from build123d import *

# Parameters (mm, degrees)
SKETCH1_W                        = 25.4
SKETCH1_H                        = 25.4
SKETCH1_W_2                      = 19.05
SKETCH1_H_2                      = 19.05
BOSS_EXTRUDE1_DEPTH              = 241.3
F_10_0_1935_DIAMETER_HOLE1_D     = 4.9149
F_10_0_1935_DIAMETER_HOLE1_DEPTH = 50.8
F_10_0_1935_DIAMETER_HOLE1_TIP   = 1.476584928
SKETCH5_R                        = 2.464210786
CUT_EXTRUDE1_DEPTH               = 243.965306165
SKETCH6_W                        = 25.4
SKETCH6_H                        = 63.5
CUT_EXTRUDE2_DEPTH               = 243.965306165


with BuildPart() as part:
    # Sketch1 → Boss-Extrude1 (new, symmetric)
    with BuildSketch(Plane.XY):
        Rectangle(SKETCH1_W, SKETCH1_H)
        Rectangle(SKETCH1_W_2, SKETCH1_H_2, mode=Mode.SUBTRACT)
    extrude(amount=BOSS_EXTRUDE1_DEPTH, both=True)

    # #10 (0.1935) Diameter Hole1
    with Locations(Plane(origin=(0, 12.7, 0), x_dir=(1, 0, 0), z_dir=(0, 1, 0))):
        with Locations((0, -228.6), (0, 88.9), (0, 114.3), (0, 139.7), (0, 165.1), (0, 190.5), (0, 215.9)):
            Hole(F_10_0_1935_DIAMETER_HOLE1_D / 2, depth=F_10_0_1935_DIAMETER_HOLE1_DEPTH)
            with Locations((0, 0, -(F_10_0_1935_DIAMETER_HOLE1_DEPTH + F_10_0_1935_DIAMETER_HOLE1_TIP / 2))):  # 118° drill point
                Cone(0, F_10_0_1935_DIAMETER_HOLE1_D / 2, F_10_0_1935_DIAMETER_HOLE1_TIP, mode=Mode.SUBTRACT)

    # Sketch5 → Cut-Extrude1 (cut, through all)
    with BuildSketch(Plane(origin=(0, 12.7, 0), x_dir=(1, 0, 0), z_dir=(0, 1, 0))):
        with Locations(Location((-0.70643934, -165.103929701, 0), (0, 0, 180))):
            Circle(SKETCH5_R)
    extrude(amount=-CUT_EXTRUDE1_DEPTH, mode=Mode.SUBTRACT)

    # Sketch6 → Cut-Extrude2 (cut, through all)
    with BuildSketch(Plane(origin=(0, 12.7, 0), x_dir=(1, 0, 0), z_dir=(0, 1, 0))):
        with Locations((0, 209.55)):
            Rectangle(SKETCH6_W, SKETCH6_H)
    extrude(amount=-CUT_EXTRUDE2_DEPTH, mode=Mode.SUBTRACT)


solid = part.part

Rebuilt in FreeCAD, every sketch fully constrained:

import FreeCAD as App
import Part
import Sketcher
Q = App.Units.Quantity

doc = App.newDocument("Part")
body = doc.addObject("PartDesign::Body", "Body")

# Sketch on XY plane
sketch1 = body.newObject("Sketcher::SketchObject", "Sketch")
sketch1.AttachmentSupport = (doc.getObject("XY_Plane"), [""])
sketch1.MapMode = "FlatFace"
sketch1.addGeometry([
    Part.LineSegment(App.Vector(-13, 13, 0), App.Vector(-13, -13, 0)),  # 0
    Part.LineSegment(App.Vector(-13, -13, 0), App.Vector(13, -13, 0)),  # 1
    Part.LineSegment(App.Vector(13, -13, 0), App.Vector(13, 13, 0)),  # 2
    Part.LineSegment(App.Vector(13, 13, 0), App.Vector(-13, 13, 0)),  # 3
    Part.LineSegment(App.Vector(10, -10, 0), App.Vector(-10, -10, 0)),  # 4
    Part.LineSegment(App.Vector(-10, -10, 0), App.Vector(-10, 10, 0)),  # 5
    Part.LineSegment(App.Vector(-10, 10, 0), App.Vector(10, 10, 0)),  # 6
    Part.LineSegment(App.Vector(10, 10, 0), App.Vector(10, -10, 0)),  # 7
], False)
sketch1.addConstraint([
    Sketcher.Constraint("Coincident", 0, 2, 1, 1),
    Sketcher.Constraint("Coincident", 1, 2, 2, 1),
    Sketcher.Constraint("Coincident", 2, 2, 3, 1),
    Sketcher.Constraint("Coincident", 3, 2, 0, 1),
    Sketcher.Constraint("Coincident", 4, 2, 5, 1),
    Sketcher.Constraint("Coincident", 5, 2, 6, 1),
    Sketcher.Constraint("Coincident", 6, 2, 7, 1),
    Sketcher.Constraint("Coincident", 7, 2, 4, 1),
    Sketcher.Constraint("Vertical", 0),
    Sketcher.Constraint("Horizontal", 1),
    Sketcher.Constraint("Vertical", 2),
    Sketcher.Constraint("Horizontal", 3),
    Sketcher.Constraint("Horizontal", 4),
    Sketcher.Constraint("Vertical", 5),
    Sketcher.Constraint("Horizontal", 6),
    Sketcher.Constraint("Vertical", 7),
    Sketcher.Constraint("Symmetric", 0, 2, 2, 2, -1, 1),
    Sketcher.Constraint("Symmetric", 4, 2, 6, 2, -1, 1),
    Sketcher.Constraint("Equal", 3, 0),
    Sketcher.Constraint("Equal", 6, 5),
    Sketcher.Constraint("DistanceX", 1, 1, 1, 2, Q("1 in")),
    Sketcher.Constraint("DistanceX", 4, 2, 4, 1, Q("0.75 in")),
])
pad1 = body.newObject("PartDesign::Pad", "Pad")
pad1.Profile = sketch1
pad1.Length = Q("19 in")
pad1.Midplane = True

# Sketch on XZ plane
sketch2 = body.newObject("Sketcher::SketchObject", "Sketch001")
sketch2.AttachmentSupport = (doc.getObject("XZ_Plane"), [""])
sketch2.MapMode = "FlatFace"
sketch2.AttachmentOffset = App.Placement(App.Vector(0, 0, -0.5 * 25.4), App.Rotation())
sketch2.addGeometry([
    Part.Circle(App.Vector(0, 228.6, 0), App.Vector(0, 0, 1), 2.5),  # 0
    Part.Circle(App.Vector(0, -88.9, 0), App.Vector(0, 0, 1), 2.5),  # 1
    Part.Circle(App.Vector(0, -114.3, 0), App.Vector(0, 0, 1), 2.5),  # 2
    Part.Circle(App.Vector(0, -139.7, 0), App.Vector(0, 0, 1), 2.5),  # 3
    Part.Circle(App.Vector(0, -165.1, 0), App.Vector(0, 0, 1), 2.5),  # 4
    Part.Circle(App.Vector(0, -190.5, 0), App.Vector(0, 0, 1), 2.5),  # 5
    Part.Circle(App.Vector(0, -215.9, 0), App.Vector(0, 0, 1), 2.5),  # 6
], False)
sketch2.addConstraint([
    Sketcher.Constraint("Equal", 0, 1),
    Sketcher.Constraint("Equal", 1, 2),
    Sketcher.Constraint("Equal", 2, 3),
    Sketcher.Constraint("Equal", 3, 4),
    Sketcher.Constraint("Equal", 4, 5),
    Sketcher.Constraint("Equal", 5, 6),
    Sketcher.Constraint("PointOnObject", 0, 3, -2),
    Sketcher.Constraint("PointOnObject", 1, 3, -2),
    Sketcher.Constraint("PointOnObject", 2, 3, -2),
    Sketcher.Constraint("PointOnObject", 3, 3, -2),
    Sketcher.Constraint("PointOnObject", 4, 3, -2),
    Sketcher.Constraint("PointOnObject", 5, 3, -2),
    Sketcher.Constraint("PointOnObject", 6, 3, -2),
    Sketcher.Constraint("DistanceY", -1, 1, 0, 3, Q("9 in")),
    Sketcher.Constraint("DistanceY", 2, 3, 1, 3, Q("1 in")),
    Sketcher.Constraint("DistanceY", 3, 3, 2, 3, Q("1 in")),
    Sketcher.Constraint("DistanceY", 4, 3, 3, 3, Q("1 in")),
    Sketcher.Constraint("DistanceY", 5, 3, 4, 3, Q("1 in")),
    Sketcher.Constraint("DistanceY", 6, 3, 5, 3, Q("1 in")),
    Sketcher.Constraint("Diameter", 0, Q("0.1935 in")),
    Sketcher.Constraint("DistanceY", 1, 3, -1, 1, Q("3.5 in")),
])
doc.recompute()
hole = body.newObject("PartDesign::Hole", "Hole")
hole.Profile = sketch2
hole.ThreadType = "None"
hole.Diameter = Q("0.1935 in")
hole.DepthType = "Dimension"
hole.Depth = Q("2 in")
hole.DrillPoint = "Angled"
hole.DrillPointAngle = 118
hole.Reversed = True

# Sketch on XZ plane
sketch3 = body.newObject("Sketcher::SketchObject", "Sketch002")
sketch3.AttachmentSupport = (doc.getObject("XZ_Plane"), [""])
sketch3.MapMode = "FlatFace"
sketch3.AttachmentOffset = App.Placement(App.Vector(0, 0, -0.5 * 25.4), App.Rotation())
sketch3.addGeometry(Part.Circle(App.Vector(-0.7, 165.1, 0), App.Vector(0, 0, 1), 2.5), False)
sketch3.addConstraint([
    Sketcher.Constraint("Diameter", 0, 4.928422),
    Sketcher.Constraint("DistanceX", 0, 3, -1, 1, 0.706439),
    Sketcher.Constraint("DistanceY", -1, 1, 0, 3, 165.10393),
])
pocket1 = body.newObject("PartDesign::Pocket", "Pocket")
pocket1.Profile = sketch3
pocket1.Type = "ThroughAll"
pocket1.Reversed = True

# Sketch on XZ plane
sketch4 = body.newObject("Sketcher::SketchObject", "Sketch003")
sketch4.AttachmentSupport = (doc.getObject("XZ_Plane"), [""])
sketch4.MapMode = "FlatFace"
sketch4.AttachmentOffset = App.Placement(App.Vector(0, 0, -0.5 * 25.4), App.Rotation())
sketch4.addGeometry([
    Part.LineSegment(App.Vector(-13, -241, 0), App.Vector(-13, -178, 0)),
    Part.LineSegment(App.Vector(-13, -178, 0), App.Vector(13, -178, 0)),
    Part.LineSegment(App.Vector(13, -178, 0), App.Vector(13, -241, 0)),
    Part.LineSegment(App.Vector(13, -241, 0), App.Vector(-13, -241, 0)),
], False)
sketch4.addConstraint([
    Sketcher.Constraint("Coincident", 0, 2, 1, 1),
    Sketcher.Constraint("Coincident", 1, 2, 2, 1),
    Sketcher.Constraint("Coincident", 2, 2, 3, 1),
    Sketcher.Constraint("Coincident", 3, 2, 0, 1),
    Sketcher.Constraint("Vertical", 0),
    Sketcher.Constraint("Horizontal", 1),
    Sketcher.Constraint("Vertical", 2),
    Sketcher.Constraint("Horizontal", 3),
    Sketcher.Constraint("DistanceX", 1, 1, 1, 2, Q("1 in")),
    Sketcher.Constraint("DistanceY", 0, 1, 0, 2, Q("2.5 in")),
    Sketcher.Constraint("DistanceY", 0, 2, -1, 1, Q("7 in")),
    Sketcher.Constraint("DistanceX", 0, 2, -1, 1, Q("0.5 in")),
])
pocket2 = body.newObject("PartDesign::Pocket", "Pocket001")
pocket2.Profile = sketch4
pocket2.Type = "ThroughAll"
pocket2.Reversed = True

doc.recompute()
